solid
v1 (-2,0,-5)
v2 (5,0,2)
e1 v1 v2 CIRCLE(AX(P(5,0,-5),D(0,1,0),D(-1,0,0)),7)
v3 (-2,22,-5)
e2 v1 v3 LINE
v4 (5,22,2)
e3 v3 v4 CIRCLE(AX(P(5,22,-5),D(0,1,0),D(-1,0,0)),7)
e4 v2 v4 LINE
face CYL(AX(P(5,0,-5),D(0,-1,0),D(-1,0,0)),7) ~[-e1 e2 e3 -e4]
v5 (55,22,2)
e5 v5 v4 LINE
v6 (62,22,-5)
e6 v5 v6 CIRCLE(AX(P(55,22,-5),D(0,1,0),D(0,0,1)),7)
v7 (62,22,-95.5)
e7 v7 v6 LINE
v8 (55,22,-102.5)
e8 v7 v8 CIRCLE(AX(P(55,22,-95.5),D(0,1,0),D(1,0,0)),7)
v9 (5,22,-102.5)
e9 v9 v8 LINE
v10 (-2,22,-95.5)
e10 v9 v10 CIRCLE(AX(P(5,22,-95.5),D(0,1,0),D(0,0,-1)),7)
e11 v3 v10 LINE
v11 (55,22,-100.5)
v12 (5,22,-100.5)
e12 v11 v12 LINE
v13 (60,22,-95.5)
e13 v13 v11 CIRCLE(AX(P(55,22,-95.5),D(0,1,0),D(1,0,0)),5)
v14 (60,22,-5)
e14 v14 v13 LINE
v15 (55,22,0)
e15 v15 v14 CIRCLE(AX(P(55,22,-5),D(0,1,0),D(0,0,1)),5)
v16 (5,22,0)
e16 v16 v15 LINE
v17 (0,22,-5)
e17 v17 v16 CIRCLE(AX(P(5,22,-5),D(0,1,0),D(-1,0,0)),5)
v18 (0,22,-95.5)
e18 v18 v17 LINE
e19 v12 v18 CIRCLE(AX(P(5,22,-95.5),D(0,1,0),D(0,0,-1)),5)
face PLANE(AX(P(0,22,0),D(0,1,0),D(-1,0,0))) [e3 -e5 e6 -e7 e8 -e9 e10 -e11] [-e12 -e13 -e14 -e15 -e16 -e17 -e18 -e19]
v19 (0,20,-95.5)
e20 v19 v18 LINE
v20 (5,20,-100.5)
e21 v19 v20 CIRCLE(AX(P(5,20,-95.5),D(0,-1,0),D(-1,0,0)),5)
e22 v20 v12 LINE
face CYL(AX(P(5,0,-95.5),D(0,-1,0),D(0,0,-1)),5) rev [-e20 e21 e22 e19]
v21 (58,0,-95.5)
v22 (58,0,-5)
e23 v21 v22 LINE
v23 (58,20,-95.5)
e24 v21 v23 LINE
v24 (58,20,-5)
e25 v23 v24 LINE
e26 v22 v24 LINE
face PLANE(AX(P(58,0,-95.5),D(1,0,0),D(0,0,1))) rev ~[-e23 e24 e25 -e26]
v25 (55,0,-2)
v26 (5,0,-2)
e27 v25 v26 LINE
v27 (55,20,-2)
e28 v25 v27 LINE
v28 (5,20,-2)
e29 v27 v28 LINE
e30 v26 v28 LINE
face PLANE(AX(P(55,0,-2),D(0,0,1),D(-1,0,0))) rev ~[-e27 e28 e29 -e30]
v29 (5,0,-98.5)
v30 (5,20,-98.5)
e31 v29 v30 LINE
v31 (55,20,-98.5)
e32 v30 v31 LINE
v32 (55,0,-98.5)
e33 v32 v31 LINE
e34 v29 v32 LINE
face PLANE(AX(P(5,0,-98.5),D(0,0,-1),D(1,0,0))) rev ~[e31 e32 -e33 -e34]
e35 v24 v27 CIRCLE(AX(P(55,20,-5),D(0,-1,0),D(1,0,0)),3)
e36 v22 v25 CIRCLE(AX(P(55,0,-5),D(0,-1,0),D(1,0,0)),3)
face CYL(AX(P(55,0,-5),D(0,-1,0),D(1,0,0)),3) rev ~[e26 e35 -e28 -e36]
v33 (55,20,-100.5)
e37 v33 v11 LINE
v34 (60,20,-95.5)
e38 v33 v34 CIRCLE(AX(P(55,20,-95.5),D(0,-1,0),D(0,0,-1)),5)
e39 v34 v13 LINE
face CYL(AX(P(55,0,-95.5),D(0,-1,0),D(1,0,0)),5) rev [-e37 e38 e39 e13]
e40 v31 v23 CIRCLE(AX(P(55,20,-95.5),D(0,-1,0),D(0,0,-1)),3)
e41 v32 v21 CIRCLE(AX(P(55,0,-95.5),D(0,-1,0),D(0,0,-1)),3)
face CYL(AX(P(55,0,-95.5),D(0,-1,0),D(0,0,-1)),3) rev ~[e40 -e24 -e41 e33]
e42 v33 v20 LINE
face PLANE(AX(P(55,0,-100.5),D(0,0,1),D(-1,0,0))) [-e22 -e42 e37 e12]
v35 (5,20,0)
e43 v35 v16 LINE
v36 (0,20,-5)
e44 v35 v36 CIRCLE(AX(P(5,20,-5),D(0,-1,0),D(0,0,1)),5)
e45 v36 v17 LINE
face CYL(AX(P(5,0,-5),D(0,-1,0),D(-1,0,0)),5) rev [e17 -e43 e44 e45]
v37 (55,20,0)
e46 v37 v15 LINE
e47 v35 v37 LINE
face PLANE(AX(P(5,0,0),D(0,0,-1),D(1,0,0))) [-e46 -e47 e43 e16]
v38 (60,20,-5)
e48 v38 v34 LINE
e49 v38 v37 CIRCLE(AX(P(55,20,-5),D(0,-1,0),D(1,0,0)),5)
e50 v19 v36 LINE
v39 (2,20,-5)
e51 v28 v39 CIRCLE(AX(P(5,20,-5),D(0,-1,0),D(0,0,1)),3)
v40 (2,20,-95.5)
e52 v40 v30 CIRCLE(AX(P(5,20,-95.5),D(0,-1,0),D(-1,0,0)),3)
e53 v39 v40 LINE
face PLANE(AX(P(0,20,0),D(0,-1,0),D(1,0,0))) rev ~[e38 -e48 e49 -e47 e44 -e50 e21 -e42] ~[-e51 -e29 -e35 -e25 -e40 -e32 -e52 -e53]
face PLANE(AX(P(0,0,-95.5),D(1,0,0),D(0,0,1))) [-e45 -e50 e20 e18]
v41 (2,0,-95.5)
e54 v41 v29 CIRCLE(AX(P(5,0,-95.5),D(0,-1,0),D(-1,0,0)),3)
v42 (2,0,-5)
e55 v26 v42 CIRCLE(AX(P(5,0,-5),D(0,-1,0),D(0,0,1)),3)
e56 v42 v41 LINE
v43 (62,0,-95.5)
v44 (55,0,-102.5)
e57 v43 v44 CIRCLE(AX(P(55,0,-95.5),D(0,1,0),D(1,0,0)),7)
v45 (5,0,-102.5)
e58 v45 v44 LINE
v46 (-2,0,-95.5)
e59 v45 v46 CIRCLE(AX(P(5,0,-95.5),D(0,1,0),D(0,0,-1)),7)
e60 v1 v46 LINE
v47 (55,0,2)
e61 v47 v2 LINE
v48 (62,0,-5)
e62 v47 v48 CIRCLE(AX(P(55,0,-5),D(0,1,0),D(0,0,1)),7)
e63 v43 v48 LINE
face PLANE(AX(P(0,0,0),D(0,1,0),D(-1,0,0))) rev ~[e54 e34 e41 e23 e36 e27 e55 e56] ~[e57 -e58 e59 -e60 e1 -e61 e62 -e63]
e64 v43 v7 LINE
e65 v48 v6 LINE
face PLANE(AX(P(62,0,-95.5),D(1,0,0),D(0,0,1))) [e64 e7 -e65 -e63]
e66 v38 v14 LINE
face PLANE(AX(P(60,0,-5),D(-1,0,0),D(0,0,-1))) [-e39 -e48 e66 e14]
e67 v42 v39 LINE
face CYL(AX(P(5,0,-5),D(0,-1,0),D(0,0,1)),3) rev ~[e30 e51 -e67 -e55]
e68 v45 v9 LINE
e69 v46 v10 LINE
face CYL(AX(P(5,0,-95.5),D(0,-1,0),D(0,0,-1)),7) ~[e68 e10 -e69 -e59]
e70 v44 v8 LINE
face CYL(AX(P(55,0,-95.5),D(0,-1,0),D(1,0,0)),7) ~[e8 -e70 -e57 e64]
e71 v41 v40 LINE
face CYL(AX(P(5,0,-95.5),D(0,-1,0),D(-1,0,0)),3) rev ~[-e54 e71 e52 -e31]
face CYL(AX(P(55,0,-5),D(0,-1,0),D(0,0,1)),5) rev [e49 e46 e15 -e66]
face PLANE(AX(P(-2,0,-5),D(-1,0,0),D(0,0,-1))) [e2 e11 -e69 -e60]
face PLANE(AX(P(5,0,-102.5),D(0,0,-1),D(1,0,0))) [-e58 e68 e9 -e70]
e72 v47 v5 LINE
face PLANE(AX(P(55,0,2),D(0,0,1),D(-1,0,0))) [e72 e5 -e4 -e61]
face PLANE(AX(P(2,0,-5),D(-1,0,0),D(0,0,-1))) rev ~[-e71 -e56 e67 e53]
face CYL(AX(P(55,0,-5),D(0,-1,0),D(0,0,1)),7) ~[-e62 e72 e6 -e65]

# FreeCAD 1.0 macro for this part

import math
import FreeCAD as App
import Part
import Sketcher

V = App.Vector
Q = App.Units.Quantity

doc = App.newDocument("Part")
body = doc.addObject("PartDesign::Body", "Body")

# Sketch on XZ plane
sketch1 = body.newObject("Sketcher::SketchObject", "Sketch")
sketch1.AttachmentSupport = (doc.getObject("XZ_Plane"), [""])
sketch1.MapMode = "FlatFace"
sketch1.addGeometry([
    Part.LineSegment(V(62, -5, 0), V(62, -96, 0)),  # 0
    Part.ArcOfCircle(Part.Circle(V(55, -96, 0), V(0, 0, 1), 7), math.radians(-90), math.radians(0)),  # 1
    Part.LineSegment(V(55, -102, 0), V(5, -102, 0)),  # 2
    Part.ArcOfCircle(Part.Circle(V(5, -96, 0), V(0, 0, 1), 7), math.radians(180), math.radians(270)),  # 3
    Part.LineSegment(V(-2, -96, 0), V(-2, -5, 0)),  # 4
    Part.ArcOfCircle(Part.Circle(V(5, -5, 0), V(0, 0, 1), 7), math.radians(90), math.radians(180)),  # 5
    Part.LineSegment(V(5, 2, 0), V(55, 2, 0)),  # 6
    Part.ArcOfCircle(Part.Circle(V(55, -5, 0), V(0, 0, 1), 7), math.radians(0), math.radians(90)),  # 7
    Part.LineSegment(V(55, 0, 0), V(5, 0, 0)),  # 8
    Part.ArcOfCircle(Part.Circle(V(5, -5, 0), V(0, 0, 1), 5), math.radians(90), math.radians(180)),  # 9
    Part.LineSegment(V(0, -5, 0), V(0, -96, 0)),  # 10
    Part.ArcOfCircle(Part.Circle(V(5, -96, 0), V(0, 0, 1), 5), math.radians(180), math.radians(270)),  # 11
    Part.LineSegment(V(5, -100, 0), V(55, -100, 0)),  # 12
    Part.ArcOfCircle(Part.Circle(V(55, -96, 0), V(0, 0, 1), 5), math.radians(-90), math.radians(0)),  # 13
    Part.LineSegment(V(60, -96, 0), V(60, -5, 0)),  # 14
    Part.ArcOfCircle(Part.Circle(V(55, -5, 0), V(0, 0, 1), 5), math.radians(0), math.radians(90)),  # 15
], False)
sketch1.addConstraint([
    Sketcher.Constraint("Tangent", 0, 2, 1, 2),
    Sketcher.Constraint("Tangent", 1, 1, 2, 1),
    Sketcher.Constraint("Tangent", 2, 2, 3, 2),
    Sketcher.Constraint("Tangent", 3, 1, 4, 1),
    Sketcher.Constraint("Tangent", 4, 2, 5, 2),
    Sketcher.Constraint("Tangent", 5, 1, 6, 1),
    Sketcher.Constraint("Tangent", 6, 2, 7, 2),
    Sketcher.Constraint("Tangent", 7, 1, 0, 1),
    Sketcher.Constraint("Tangent", 8, 2, 9, 1),
    Sketcher.Constraint("Tangent", 9, 2, 10, 1),
    Sketcher.Constraint("Tangent", 10, 2, 11, 1),
    Sketcher.Constraint("Tangent", 11, 2, 12, 1),
    Sketcher.Constraint("Tangent", 12, 2, 13, 1),
    Sketcher.Constraint("Tangent", 13, 2, 14, 1),
    Sketcher.Constraint("Tangent", 14, 2, 15, 1),
    Sketcher.Constraint("Tangent", 15, 2, 8, 1),
    Sketcher.Constraint("Vertical", 0),
    Sketcher.Constraint("Horizontal", 2),
    Sketcher.Constraint("Vertical", 4),
    Sketcher.Constraint("Horizontal", 6),
    Sketcher.Constraint("Horizontal", 8),
    Sketcher.Constraint("Vertical", 10),
    Sketcher.Constraint("Horizontal", 12),
    Sketcher.Constraint("Vertical", 14),
    Sketcher.Constraint("Coincident", 9, 3, 5, 3),
    Sketcher.Constraint("Coincident", 11, 3, 3, 3),
    Sketcher.Constraint("Coincident", 13, 3, 1, 3),
    Sketcher.Constraint("Equal", 1, 3),
    Sketcher.Constraint("Equal", 3, 5),
    Sketcher.Constraint("Equal", 5, 7),
    Sketcher.Constraint("Equal", 13, 15),
    Sketcher.Constraint("PointOnObject", 8, 2, -1),
    Sketcher.Constraint("PointOnObject", 9, 2, -2),
    Sketcher.Constraint("Radius", 9, Q("5 mm")),
    Sketcher.Constraint("DistanceX", 3, 1, -1, 1, Q("2 mm")),
    Sketcher.Constraint("DistanceX", -1, 1, 13, 2, Q("60 mm")),
    Sketcher.Constraint("DistanceY", 11, 2, -1, 1, Q("100.5 mm")),
])
pad1 = body.newObject("PartDesign::Pad", "Pad")
pad1.Profile = sketch1
pad1.Length = 22
pad1.Reversed = True

# Sketch on XZ plane
sketch2 = body.newObject("Sketcher::SketchObject", "Sketch001")
sketch2.AttachmentSupport = (doc.getObject("XZ_Plane"), [""])
sketch2.MapMode = "FlatFace"
sketch2.addGeometry([
    Part.LineSegment(V(55, 0, 0), V(5, 0, 0)),  # 0
    Part.ArcOfCircle(Part.Circle(V(5, -5, 0), V(0, 0, 1), 5), math.radians(90), math.radians(180)),  # 1
    Part.LineSegment(V(0, -5, 0), V(0, -95.5, 0)),  # 2
    Part.ArcOfCircle(Part.Circle(V(5, -95.5, 0), V(0, 0, 1), 5), math.radians(180), math.radians(270)),  # 3
    Part.LineSegment(V(5, -100.5, 0), V(55, -100.5, 0)),  # 4
    Part.ArcOfCircle(Part.Circle(V(55, -95.5, 0), V(0, 0, 1), 5), math.radians(-90), math.radians(0)),  # 5
    Part.LineSegment(V(60, -95.5, 0), V(60, -5, 0)),  # 6
    Part.ArcOfCircle(Part.Circle(V(55, -5, 0), V(0, 0, 1), 5), math.radians(0), math.radians(90)),  # 7
    Part.LineSegment(V(2, -95.5, 0), V(2, -5, 0)),  # 8
    Part.ArcOfCircle(Part.Circle(V(5, -5, 0), V(0, 0, 1), 3), math.radians(90), math.radians(180)),  # 9
    Part.LineSegment(V(5, -2, 0), V(55, -2, 0)),  # 10
    Part.ArcOfCircle(Part.Circle(V(55, -5, 0), V(0, 0, 1), 3), math.radians(0), math.radians(90)),  # 11
    Part.LineSegment(V(58, -5, 0), V(58, -95.5, 0)),  # 12
    Part.ArcOfCircle(Part.Circle(V(55, -95.5, 0), V(0, 0, 1), 3), math.radians(-90), math.radians(0)),  # 13
    Part.LineSegment(V(55, -98.5, 0), V(5, -98.5, 0)),  # 14
    Part.ArcOfCircle(Part.Circle(V(5, -95.5, 0), V(0, 0, 1), 3), math.radians(180), math.radians(270)),  # 15
], False)
sketch2.addConstraint([
    Sketcher.Constraint("Tangent", 0, 2, 1, 1),
    Sketcher.Constraint("Tangent", 1, 2, 2, 1),
    Sketcher.Constraint("Tangent", 2, 2, 3, 1),
    Sketcher.Constraint("Tangent", 3, 2, 4, 1),
    Sketcher.Constraint("Tangent", 4, 2, 5, 1),
    Sketcher.Constraint("Tangent", 5, 2, 6, 1),
    Sketcher.Constraint("Tangent", 6, 2, 7, 1),
    Sketcher.Constraint("Tangent", 7, 2, 0, 1),
    Sketcher.Constraint("Tangent", 8, 2, 9, 2),
    Sketcher.Constraint("Tangent", 9, 1, 10, 1),
    Sketcher.Constraint("Tangent", 10, 2, 11, 2),
    Sketcher.Constraint("Tangent", 11, 1, 12, 1),
    Sketcher.Constraint("Tangent", 12, 2, 13, 2),
    Sketcher.Constraint("Tangent", 13, 1, 14, 1),
    Sketcher.Constraint("Tangent", 14, 2, 15, 2),
    Sketcher.Constraint("Tangent", 15, 1, 8, 1),
    Sketcher.Constraint("Horizontal", 0),
    Sketcher.Constraint("Vertical", 2),
    Sketcher.Constraint("Horizontal", 4),
    Sketcher.Constraint("Vertical", 6),
    Sketcher.Constraint("Vertical", 8),
    Sketcher.Constraint("Horizontal", 10),
    Sketcher.Constraint("Vertical", 12),
    Sketcher.Constraint("Horizontal", 14),
    Sketcher.Constraint("Coincident", 9, 3, 1, 3),
    Sketcher.Constraint("Coincident", 11, 3, 7, 3),
    Sketcher.Constraint("Coincident", 13, 3, 5, 3),
    Sketcher.Constraint("Equal", 1, 3),
    Sketcher.Constraint("Equal", 3, 5),
    Sketcher.Constraint("Equal", 5, 7),
    Sketcher.Constraint("Equal", 13, 15),
    Sketcher.Constraint("PointOnObject", 0, 2, -1),
    Sketcher.Constraint("PointOnObject", 1, 2, -2),
    Sketcher.Constraint("Radius", 1, Q("5 mm")),
    Sketcher.Constraint("DistanceX", -1, 1, 5, 2, Q("60 mm")),
    Sketcher.Constraint("DistanceX", -1, 1, 8, 2, Q("2 mm")),
    Sketcher.Constraint("DistanceY", 3, 2, -1, 1, Q("100.5 mm")),
])
pad2 = body.newObject("PartDesign::Pad", "Pad001")
pad2.Profile = sketch2
pad2.Length = 20
pad2.Reversed = True

doc.recompute()
